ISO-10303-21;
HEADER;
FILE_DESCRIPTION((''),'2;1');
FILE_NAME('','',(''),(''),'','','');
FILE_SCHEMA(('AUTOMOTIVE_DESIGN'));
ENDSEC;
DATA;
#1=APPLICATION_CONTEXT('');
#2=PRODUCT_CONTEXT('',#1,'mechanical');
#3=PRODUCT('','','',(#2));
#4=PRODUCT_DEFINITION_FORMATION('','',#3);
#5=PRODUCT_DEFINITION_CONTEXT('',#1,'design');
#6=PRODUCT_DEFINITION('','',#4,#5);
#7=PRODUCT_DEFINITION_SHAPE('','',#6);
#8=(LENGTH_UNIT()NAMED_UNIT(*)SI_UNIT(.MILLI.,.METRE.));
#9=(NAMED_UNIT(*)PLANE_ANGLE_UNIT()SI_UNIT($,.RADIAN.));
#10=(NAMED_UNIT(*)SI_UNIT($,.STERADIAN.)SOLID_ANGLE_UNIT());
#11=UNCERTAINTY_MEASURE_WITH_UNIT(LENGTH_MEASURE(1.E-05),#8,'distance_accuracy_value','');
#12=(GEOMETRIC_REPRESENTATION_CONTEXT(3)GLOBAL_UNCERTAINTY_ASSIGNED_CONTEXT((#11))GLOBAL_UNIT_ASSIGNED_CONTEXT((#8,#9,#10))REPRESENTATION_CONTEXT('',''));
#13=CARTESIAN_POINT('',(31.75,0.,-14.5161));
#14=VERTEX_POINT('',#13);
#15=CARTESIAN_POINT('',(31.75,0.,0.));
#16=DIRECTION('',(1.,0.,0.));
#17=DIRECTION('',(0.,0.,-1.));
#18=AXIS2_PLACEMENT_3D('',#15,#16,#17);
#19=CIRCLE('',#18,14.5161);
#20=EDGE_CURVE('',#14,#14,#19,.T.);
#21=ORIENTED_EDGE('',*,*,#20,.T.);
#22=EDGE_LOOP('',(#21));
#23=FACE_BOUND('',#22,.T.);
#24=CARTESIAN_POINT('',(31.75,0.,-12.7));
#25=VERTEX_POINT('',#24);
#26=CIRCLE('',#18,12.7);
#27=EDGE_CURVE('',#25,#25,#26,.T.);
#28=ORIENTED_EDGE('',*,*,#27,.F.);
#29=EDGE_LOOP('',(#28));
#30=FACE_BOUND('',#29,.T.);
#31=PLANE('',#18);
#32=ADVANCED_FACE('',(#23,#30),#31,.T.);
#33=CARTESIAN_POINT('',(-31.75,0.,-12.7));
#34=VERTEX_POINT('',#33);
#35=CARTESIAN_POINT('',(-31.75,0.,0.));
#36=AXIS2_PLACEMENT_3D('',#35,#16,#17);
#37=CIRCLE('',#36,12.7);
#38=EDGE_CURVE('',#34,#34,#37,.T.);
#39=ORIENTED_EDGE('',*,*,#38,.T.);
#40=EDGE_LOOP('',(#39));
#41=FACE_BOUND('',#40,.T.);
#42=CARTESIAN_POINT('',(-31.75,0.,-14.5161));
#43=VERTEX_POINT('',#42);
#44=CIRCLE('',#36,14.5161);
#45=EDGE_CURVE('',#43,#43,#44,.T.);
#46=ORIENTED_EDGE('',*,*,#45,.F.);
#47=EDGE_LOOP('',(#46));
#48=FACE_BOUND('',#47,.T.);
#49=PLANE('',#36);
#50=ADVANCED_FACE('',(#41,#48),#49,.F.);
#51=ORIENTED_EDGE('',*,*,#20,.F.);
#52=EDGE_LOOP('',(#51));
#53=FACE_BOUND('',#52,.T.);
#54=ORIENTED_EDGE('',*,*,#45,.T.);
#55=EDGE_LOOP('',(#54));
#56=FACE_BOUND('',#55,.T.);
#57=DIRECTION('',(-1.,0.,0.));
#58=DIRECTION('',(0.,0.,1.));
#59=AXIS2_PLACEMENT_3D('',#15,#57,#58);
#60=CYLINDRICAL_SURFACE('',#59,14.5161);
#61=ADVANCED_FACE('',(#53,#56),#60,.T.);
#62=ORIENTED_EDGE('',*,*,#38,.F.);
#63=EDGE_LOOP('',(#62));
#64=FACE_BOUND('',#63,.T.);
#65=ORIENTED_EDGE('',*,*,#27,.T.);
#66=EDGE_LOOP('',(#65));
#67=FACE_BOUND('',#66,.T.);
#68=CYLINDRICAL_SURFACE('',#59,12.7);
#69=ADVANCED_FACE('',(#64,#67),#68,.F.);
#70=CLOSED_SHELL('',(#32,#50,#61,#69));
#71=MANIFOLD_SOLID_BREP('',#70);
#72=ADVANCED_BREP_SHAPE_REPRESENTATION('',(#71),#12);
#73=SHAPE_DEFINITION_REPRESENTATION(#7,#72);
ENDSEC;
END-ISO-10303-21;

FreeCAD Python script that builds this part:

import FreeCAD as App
import Part
import Sketcher
from FreeCAD import Vector
Q = App.Units.Quantity

doc = App.newDocument("Part")
params = doc.addObject("Spreadsheet::Sheet", "Params")
for row, (alias, value) in enumerate([
    ("sketch1_diameter", "1 in"),
    ("sketch1_diameter2", "1.143 in"),
    ("pad1_length", "2.5 in"),
], start=1):
    params.set(f"A{row}", alias)
    params.set(f"B{row}", "=" + value)
    params.setAlias(f"B{row}", alias)

body = doc.addObject("PartDesign::Body", "Body")

# Sketch on YZ plane
sketch1 = body.newObject("Sketcher::SketchObject", "Sketch")
sketch1.AttachmentSupport = (doc.getObject("YZ_Plane"), [""])
sketch1.MapMode = "FlatFace"
sketch1.addGeometry([
    Part.Circle(Vector(0, 0, 0), Vector(0, 0, 1), 15),
    Part.Circle(Vector(0, 0, 0), Vector(0, 0, 1), 13),
], False)
sketch1.addConstraint([
    Sketcher.Constraint("Coincident", 0, 3, -1, 1),
    Sketcher.Constraint("Coincident", 1, 3, -1, 1),
    Sketcher.Constraint("Diameter", 1, Q("1 in")),
    Sketcher.Constraint("Diameter", 0, Q("1.143 in")),
])
sketch1.setExpression("Constraints[2]", "Params.sketch1_diameter")
sketch1.setExpression("Constraints[3]", "Params.sketch1_diameter2")
pad1 = body.newObject("PartDesign::Pad", "Pad")
pad1.Profile = sketch1
pad1.setExpression("Length", "Params.pad1_length")
pad1.Midplane = True

doc.recompute()
